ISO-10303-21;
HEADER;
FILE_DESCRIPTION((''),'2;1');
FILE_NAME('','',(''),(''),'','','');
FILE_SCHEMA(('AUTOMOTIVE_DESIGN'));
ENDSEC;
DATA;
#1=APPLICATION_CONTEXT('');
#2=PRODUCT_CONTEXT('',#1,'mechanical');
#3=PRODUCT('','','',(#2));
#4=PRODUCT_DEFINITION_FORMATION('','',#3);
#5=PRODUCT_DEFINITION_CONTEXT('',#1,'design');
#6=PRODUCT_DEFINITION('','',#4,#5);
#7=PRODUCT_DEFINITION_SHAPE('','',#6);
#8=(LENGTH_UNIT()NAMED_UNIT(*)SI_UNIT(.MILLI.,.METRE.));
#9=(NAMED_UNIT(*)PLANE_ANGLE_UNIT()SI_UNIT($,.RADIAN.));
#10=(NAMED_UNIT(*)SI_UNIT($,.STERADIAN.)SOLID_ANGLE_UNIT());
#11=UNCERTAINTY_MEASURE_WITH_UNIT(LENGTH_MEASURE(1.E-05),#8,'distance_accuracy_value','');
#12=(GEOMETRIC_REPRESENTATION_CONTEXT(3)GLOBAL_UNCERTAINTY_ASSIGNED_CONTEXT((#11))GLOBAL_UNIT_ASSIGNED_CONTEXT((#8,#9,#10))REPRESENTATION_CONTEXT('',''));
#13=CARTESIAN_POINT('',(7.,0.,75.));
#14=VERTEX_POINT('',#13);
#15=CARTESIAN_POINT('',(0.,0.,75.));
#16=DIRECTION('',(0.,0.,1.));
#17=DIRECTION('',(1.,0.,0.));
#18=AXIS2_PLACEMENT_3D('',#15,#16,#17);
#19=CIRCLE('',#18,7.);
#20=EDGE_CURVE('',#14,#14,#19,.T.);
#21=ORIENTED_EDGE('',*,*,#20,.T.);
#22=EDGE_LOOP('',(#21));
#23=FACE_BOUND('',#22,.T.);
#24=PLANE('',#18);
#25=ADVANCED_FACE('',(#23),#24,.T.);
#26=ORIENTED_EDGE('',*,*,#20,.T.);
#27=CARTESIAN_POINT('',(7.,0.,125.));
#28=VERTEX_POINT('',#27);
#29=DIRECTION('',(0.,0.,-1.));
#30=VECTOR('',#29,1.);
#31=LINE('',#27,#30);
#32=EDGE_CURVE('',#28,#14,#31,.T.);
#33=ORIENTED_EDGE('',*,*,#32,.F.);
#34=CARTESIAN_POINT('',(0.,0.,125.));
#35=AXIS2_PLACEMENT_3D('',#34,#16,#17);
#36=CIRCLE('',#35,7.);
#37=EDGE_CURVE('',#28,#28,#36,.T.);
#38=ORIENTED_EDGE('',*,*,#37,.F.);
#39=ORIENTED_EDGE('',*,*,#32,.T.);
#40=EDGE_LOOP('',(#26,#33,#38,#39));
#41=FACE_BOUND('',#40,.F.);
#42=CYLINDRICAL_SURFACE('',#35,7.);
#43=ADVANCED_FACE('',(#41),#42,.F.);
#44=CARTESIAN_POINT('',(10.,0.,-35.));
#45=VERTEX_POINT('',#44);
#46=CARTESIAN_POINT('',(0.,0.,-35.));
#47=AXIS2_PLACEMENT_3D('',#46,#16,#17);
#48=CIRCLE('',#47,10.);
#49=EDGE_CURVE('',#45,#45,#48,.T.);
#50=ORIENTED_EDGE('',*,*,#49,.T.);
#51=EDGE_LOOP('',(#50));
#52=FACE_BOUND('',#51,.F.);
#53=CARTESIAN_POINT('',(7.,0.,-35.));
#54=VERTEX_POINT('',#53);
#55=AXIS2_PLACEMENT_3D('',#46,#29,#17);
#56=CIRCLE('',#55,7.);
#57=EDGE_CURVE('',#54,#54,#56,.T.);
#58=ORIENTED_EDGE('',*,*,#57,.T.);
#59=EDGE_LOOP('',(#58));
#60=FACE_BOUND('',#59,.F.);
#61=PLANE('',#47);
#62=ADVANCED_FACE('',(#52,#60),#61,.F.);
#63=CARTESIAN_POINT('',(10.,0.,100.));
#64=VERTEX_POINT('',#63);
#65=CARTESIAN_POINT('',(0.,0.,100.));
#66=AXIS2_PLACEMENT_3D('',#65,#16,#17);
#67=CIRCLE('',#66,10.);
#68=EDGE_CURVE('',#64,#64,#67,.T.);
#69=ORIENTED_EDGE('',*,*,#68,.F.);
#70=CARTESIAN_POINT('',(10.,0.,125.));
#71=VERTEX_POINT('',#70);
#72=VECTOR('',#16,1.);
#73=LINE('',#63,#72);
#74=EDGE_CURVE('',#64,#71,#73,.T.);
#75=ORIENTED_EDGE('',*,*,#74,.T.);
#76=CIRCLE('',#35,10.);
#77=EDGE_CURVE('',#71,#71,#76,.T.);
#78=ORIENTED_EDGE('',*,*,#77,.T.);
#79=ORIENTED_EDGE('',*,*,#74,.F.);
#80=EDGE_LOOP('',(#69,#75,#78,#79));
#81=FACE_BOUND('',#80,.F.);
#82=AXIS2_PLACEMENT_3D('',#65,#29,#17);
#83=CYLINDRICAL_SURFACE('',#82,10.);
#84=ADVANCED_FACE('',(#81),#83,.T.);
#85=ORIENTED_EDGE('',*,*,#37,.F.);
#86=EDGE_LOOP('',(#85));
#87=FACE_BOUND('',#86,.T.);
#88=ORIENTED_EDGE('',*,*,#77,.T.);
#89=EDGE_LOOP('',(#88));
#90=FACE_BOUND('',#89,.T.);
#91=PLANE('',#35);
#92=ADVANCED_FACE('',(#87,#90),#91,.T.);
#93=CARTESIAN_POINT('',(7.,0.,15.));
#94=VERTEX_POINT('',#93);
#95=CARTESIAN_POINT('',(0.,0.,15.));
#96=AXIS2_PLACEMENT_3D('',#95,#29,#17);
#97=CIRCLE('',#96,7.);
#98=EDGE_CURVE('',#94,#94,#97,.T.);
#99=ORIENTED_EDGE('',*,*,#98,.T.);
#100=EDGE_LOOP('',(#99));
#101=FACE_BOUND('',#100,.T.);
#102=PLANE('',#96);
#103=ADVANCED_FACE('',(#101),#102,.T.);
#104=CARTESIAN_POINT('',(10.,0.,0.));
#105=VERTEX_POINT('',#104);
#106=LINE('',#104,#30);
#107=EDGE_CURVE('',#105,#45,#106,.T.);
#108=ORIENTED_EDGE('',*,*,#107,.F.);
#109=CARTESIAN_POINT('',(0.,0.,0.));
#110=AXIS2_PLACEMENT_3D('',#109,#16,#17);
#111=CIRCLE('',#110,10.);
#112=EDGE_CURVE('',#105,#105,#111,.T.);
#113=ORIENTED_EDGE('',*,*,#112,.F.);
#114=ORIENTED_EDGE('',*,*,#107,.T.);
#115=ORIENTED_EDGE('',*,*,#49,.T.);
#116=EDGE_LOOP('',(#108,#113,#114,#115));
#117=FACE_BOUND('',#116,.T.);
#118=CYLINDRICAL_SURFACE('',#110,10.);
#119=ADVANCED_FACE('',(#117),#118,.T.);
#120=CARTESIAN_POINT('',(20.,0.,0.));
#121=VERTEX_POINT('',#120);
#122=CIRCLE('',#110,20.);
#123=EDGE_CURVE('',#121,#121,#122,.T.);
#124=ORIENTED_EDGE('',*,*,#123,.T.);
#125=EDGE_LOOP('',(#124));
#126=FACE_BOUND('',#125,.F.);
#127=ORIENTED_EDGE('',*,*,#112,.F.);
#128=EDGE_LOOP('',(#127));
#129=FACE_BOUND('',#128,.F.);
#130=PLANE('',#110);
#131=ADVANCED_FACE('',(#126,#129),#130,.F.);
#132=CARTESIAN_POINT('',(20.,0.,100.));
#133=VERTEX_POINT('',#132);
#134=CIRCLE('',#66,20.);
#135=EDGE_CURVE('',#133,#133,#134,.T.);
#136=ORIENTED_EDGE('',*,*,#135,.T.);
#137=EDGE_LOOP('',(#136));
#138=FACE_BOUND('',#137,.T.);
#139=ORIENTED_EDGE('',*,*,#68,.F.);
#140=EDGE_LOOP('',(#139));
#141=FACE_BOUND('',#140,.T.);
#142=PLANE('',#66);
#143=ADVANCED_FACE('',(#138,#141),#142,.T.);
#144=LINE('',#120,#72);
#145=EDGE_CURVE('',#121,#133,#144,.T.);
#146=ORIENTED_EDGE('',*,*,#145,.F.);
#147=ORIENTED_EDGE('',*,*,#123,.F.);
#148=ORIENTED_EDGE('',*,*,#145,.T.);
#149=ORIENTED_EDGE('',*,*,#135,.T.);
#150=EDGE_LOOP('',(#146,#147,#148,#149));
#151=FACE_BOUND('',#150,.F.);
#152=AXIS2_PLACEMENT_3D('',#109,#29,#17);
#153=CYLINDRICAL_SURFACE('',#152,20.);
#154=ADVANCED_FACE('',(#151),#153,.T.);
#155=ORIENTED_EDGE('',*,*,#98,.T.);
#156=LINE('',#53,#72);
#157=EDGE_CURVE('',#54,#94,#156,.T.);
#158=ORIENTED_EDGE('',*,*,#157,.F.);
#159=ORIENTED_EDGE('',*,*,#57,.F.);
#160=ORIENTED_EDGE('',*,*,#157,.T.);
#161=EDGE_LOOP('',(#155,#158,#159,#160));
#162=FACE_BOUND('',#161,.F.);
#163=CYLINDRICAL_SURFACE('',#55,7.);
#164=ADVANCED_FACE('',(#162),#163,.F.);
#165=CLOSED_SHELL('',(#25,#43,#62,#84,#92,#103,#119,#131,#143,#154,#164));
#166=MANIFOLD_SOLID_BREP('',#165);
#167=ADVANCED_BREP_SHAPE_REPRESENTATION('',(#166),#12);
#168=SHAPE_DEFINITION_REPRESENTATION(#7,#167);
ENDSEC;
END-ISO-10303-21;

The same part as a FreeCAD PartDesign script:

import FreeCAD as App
import Part
import Sketcher

V = App.Vector
Q = App.Units.Quantity

doc = App.newDocument("Part")
body = doc.addObject("PartDesign::Body", "Body")

sketch1 = body.newObject("Sketcher::SketchObject", "Sketch")
sketch1.AttachmentSupport = (doc.getObject("XY_Plane"), [""])
sketch1.MapMode = "FlatFace"
sketch1.addGeometry(Part.Circle(V(0, 0, 0), V(0, 0, 1), 10), False)
sketch1.addConstraint(Sketcher.Constraint("Coincident", 0, 3, -1, 1))
sketch1.addConstraint(Sketcher.Constraint("Diameter", 0, Q("20 mm")))
pad1 = body.newObject("PartDesign::Pad", "Pad")
pad1.Profile = sketch1
pad1.Length = 35
pad1.Reversed = True

sketch2 = body.newObject("Sketcher::SketchObject", "Sketch001")
sketch2.AttachmentSupport = (doc.getObject("XY_Plane"), [""])
sketch2.MapMode = "FlatFace"
sketch2.addGeometry(Part.Circle(V(0, 0, 0), V(0, 0, 1), 20), False)
sketch2.addConstraint(Sketcher.Constraint("Coincident", 0, 3, -1, 1))
sketch2.addConstraint(Sketcher.Constraint("Diameter", 0, Q("40 mm")))
pad2 = body.newObject("PartDesign::Pad", "Pad001")
pad2.Profile = sketch2
pad2.Length = 100

sketch3 = body.newObject("Sketcher::SketchObject", "Sketch002")
sketch3.AttachmentSupport = (doc.getObject("XY_Plane"), [""])
sketch3.MapMode = "FlatFace"
sketch3.AttachmentOffset = App.Placement(V(0, 0, 100), App.Rotation())
sketch3.addGeometry(Part.Circle(V(0, 0, 0), V(0, 0, 1), 10), False)
sketch3.addConstraint(Sketcher.Constraint("Coincident", 0, 3, -1, 1))
sketch3.addConstraint(Sketcher.Constraint("Diameter", 0, Q("20 mm")))
pad3 = body.newObject("PartDesign::Pad", "Pad002")
pad3.Profile = sketch3
pad3.Length = 25

sketch4 = body.newObject("Sketcher::SketchObject", "Sketch003")
sketch4.AttachmentSupport = (doc.getObject("XY_Plane"), [""])
sketch4.MapMode = "FlatFace"
sketch4.AttachmentOffset = App.Placement(V(0, 0, 125), App.Rotation())
sketch4.addGeometry(Part.Circle(V(0, 0, 0), V(0, 0, 1), 7), False)
sketch4.addConstraint(Sketcher.Constraint("Coincident", 0, 3, -1, 1))
sketch4.addConstraint(Sketcher.Constraint("Diameter", 0, Q("14 mm")))
pocket1 = body.newObject("PartDesign::Pocket", "Pocket")
pocket1.Profile = sketch4
pocket1.Length = 50

sketch5 = body.newObject("Sketcher::SketchObject", "Sketch004")
sketch5.AttachmentSupport = (doc.getObject("XY_Plane"), [""])
sketch5.MapMode = "FlatFace"
sketch5.AttachmentOffset = App.Placement(V(0, 0, -35), App.Rotation())
sketch5.addGeometry(Part.Circle(V(0, 0, 0), V(0, 0, 1), 7), False)
sketch5.addConstraint(Sketcher.Constraint("Coincident", 0, 3, -1, 1))
sketch5.addConstraint(Sketcher.Constraint("Diameter", 0, Q("14 mm")))
pocket2 = body.newObject("PartDesign::Pocket", "Pocket001")
pocket2.Profile = sketch5
pocket2.Length = 50
pocket2.Reversed = True

doc.recompute()
